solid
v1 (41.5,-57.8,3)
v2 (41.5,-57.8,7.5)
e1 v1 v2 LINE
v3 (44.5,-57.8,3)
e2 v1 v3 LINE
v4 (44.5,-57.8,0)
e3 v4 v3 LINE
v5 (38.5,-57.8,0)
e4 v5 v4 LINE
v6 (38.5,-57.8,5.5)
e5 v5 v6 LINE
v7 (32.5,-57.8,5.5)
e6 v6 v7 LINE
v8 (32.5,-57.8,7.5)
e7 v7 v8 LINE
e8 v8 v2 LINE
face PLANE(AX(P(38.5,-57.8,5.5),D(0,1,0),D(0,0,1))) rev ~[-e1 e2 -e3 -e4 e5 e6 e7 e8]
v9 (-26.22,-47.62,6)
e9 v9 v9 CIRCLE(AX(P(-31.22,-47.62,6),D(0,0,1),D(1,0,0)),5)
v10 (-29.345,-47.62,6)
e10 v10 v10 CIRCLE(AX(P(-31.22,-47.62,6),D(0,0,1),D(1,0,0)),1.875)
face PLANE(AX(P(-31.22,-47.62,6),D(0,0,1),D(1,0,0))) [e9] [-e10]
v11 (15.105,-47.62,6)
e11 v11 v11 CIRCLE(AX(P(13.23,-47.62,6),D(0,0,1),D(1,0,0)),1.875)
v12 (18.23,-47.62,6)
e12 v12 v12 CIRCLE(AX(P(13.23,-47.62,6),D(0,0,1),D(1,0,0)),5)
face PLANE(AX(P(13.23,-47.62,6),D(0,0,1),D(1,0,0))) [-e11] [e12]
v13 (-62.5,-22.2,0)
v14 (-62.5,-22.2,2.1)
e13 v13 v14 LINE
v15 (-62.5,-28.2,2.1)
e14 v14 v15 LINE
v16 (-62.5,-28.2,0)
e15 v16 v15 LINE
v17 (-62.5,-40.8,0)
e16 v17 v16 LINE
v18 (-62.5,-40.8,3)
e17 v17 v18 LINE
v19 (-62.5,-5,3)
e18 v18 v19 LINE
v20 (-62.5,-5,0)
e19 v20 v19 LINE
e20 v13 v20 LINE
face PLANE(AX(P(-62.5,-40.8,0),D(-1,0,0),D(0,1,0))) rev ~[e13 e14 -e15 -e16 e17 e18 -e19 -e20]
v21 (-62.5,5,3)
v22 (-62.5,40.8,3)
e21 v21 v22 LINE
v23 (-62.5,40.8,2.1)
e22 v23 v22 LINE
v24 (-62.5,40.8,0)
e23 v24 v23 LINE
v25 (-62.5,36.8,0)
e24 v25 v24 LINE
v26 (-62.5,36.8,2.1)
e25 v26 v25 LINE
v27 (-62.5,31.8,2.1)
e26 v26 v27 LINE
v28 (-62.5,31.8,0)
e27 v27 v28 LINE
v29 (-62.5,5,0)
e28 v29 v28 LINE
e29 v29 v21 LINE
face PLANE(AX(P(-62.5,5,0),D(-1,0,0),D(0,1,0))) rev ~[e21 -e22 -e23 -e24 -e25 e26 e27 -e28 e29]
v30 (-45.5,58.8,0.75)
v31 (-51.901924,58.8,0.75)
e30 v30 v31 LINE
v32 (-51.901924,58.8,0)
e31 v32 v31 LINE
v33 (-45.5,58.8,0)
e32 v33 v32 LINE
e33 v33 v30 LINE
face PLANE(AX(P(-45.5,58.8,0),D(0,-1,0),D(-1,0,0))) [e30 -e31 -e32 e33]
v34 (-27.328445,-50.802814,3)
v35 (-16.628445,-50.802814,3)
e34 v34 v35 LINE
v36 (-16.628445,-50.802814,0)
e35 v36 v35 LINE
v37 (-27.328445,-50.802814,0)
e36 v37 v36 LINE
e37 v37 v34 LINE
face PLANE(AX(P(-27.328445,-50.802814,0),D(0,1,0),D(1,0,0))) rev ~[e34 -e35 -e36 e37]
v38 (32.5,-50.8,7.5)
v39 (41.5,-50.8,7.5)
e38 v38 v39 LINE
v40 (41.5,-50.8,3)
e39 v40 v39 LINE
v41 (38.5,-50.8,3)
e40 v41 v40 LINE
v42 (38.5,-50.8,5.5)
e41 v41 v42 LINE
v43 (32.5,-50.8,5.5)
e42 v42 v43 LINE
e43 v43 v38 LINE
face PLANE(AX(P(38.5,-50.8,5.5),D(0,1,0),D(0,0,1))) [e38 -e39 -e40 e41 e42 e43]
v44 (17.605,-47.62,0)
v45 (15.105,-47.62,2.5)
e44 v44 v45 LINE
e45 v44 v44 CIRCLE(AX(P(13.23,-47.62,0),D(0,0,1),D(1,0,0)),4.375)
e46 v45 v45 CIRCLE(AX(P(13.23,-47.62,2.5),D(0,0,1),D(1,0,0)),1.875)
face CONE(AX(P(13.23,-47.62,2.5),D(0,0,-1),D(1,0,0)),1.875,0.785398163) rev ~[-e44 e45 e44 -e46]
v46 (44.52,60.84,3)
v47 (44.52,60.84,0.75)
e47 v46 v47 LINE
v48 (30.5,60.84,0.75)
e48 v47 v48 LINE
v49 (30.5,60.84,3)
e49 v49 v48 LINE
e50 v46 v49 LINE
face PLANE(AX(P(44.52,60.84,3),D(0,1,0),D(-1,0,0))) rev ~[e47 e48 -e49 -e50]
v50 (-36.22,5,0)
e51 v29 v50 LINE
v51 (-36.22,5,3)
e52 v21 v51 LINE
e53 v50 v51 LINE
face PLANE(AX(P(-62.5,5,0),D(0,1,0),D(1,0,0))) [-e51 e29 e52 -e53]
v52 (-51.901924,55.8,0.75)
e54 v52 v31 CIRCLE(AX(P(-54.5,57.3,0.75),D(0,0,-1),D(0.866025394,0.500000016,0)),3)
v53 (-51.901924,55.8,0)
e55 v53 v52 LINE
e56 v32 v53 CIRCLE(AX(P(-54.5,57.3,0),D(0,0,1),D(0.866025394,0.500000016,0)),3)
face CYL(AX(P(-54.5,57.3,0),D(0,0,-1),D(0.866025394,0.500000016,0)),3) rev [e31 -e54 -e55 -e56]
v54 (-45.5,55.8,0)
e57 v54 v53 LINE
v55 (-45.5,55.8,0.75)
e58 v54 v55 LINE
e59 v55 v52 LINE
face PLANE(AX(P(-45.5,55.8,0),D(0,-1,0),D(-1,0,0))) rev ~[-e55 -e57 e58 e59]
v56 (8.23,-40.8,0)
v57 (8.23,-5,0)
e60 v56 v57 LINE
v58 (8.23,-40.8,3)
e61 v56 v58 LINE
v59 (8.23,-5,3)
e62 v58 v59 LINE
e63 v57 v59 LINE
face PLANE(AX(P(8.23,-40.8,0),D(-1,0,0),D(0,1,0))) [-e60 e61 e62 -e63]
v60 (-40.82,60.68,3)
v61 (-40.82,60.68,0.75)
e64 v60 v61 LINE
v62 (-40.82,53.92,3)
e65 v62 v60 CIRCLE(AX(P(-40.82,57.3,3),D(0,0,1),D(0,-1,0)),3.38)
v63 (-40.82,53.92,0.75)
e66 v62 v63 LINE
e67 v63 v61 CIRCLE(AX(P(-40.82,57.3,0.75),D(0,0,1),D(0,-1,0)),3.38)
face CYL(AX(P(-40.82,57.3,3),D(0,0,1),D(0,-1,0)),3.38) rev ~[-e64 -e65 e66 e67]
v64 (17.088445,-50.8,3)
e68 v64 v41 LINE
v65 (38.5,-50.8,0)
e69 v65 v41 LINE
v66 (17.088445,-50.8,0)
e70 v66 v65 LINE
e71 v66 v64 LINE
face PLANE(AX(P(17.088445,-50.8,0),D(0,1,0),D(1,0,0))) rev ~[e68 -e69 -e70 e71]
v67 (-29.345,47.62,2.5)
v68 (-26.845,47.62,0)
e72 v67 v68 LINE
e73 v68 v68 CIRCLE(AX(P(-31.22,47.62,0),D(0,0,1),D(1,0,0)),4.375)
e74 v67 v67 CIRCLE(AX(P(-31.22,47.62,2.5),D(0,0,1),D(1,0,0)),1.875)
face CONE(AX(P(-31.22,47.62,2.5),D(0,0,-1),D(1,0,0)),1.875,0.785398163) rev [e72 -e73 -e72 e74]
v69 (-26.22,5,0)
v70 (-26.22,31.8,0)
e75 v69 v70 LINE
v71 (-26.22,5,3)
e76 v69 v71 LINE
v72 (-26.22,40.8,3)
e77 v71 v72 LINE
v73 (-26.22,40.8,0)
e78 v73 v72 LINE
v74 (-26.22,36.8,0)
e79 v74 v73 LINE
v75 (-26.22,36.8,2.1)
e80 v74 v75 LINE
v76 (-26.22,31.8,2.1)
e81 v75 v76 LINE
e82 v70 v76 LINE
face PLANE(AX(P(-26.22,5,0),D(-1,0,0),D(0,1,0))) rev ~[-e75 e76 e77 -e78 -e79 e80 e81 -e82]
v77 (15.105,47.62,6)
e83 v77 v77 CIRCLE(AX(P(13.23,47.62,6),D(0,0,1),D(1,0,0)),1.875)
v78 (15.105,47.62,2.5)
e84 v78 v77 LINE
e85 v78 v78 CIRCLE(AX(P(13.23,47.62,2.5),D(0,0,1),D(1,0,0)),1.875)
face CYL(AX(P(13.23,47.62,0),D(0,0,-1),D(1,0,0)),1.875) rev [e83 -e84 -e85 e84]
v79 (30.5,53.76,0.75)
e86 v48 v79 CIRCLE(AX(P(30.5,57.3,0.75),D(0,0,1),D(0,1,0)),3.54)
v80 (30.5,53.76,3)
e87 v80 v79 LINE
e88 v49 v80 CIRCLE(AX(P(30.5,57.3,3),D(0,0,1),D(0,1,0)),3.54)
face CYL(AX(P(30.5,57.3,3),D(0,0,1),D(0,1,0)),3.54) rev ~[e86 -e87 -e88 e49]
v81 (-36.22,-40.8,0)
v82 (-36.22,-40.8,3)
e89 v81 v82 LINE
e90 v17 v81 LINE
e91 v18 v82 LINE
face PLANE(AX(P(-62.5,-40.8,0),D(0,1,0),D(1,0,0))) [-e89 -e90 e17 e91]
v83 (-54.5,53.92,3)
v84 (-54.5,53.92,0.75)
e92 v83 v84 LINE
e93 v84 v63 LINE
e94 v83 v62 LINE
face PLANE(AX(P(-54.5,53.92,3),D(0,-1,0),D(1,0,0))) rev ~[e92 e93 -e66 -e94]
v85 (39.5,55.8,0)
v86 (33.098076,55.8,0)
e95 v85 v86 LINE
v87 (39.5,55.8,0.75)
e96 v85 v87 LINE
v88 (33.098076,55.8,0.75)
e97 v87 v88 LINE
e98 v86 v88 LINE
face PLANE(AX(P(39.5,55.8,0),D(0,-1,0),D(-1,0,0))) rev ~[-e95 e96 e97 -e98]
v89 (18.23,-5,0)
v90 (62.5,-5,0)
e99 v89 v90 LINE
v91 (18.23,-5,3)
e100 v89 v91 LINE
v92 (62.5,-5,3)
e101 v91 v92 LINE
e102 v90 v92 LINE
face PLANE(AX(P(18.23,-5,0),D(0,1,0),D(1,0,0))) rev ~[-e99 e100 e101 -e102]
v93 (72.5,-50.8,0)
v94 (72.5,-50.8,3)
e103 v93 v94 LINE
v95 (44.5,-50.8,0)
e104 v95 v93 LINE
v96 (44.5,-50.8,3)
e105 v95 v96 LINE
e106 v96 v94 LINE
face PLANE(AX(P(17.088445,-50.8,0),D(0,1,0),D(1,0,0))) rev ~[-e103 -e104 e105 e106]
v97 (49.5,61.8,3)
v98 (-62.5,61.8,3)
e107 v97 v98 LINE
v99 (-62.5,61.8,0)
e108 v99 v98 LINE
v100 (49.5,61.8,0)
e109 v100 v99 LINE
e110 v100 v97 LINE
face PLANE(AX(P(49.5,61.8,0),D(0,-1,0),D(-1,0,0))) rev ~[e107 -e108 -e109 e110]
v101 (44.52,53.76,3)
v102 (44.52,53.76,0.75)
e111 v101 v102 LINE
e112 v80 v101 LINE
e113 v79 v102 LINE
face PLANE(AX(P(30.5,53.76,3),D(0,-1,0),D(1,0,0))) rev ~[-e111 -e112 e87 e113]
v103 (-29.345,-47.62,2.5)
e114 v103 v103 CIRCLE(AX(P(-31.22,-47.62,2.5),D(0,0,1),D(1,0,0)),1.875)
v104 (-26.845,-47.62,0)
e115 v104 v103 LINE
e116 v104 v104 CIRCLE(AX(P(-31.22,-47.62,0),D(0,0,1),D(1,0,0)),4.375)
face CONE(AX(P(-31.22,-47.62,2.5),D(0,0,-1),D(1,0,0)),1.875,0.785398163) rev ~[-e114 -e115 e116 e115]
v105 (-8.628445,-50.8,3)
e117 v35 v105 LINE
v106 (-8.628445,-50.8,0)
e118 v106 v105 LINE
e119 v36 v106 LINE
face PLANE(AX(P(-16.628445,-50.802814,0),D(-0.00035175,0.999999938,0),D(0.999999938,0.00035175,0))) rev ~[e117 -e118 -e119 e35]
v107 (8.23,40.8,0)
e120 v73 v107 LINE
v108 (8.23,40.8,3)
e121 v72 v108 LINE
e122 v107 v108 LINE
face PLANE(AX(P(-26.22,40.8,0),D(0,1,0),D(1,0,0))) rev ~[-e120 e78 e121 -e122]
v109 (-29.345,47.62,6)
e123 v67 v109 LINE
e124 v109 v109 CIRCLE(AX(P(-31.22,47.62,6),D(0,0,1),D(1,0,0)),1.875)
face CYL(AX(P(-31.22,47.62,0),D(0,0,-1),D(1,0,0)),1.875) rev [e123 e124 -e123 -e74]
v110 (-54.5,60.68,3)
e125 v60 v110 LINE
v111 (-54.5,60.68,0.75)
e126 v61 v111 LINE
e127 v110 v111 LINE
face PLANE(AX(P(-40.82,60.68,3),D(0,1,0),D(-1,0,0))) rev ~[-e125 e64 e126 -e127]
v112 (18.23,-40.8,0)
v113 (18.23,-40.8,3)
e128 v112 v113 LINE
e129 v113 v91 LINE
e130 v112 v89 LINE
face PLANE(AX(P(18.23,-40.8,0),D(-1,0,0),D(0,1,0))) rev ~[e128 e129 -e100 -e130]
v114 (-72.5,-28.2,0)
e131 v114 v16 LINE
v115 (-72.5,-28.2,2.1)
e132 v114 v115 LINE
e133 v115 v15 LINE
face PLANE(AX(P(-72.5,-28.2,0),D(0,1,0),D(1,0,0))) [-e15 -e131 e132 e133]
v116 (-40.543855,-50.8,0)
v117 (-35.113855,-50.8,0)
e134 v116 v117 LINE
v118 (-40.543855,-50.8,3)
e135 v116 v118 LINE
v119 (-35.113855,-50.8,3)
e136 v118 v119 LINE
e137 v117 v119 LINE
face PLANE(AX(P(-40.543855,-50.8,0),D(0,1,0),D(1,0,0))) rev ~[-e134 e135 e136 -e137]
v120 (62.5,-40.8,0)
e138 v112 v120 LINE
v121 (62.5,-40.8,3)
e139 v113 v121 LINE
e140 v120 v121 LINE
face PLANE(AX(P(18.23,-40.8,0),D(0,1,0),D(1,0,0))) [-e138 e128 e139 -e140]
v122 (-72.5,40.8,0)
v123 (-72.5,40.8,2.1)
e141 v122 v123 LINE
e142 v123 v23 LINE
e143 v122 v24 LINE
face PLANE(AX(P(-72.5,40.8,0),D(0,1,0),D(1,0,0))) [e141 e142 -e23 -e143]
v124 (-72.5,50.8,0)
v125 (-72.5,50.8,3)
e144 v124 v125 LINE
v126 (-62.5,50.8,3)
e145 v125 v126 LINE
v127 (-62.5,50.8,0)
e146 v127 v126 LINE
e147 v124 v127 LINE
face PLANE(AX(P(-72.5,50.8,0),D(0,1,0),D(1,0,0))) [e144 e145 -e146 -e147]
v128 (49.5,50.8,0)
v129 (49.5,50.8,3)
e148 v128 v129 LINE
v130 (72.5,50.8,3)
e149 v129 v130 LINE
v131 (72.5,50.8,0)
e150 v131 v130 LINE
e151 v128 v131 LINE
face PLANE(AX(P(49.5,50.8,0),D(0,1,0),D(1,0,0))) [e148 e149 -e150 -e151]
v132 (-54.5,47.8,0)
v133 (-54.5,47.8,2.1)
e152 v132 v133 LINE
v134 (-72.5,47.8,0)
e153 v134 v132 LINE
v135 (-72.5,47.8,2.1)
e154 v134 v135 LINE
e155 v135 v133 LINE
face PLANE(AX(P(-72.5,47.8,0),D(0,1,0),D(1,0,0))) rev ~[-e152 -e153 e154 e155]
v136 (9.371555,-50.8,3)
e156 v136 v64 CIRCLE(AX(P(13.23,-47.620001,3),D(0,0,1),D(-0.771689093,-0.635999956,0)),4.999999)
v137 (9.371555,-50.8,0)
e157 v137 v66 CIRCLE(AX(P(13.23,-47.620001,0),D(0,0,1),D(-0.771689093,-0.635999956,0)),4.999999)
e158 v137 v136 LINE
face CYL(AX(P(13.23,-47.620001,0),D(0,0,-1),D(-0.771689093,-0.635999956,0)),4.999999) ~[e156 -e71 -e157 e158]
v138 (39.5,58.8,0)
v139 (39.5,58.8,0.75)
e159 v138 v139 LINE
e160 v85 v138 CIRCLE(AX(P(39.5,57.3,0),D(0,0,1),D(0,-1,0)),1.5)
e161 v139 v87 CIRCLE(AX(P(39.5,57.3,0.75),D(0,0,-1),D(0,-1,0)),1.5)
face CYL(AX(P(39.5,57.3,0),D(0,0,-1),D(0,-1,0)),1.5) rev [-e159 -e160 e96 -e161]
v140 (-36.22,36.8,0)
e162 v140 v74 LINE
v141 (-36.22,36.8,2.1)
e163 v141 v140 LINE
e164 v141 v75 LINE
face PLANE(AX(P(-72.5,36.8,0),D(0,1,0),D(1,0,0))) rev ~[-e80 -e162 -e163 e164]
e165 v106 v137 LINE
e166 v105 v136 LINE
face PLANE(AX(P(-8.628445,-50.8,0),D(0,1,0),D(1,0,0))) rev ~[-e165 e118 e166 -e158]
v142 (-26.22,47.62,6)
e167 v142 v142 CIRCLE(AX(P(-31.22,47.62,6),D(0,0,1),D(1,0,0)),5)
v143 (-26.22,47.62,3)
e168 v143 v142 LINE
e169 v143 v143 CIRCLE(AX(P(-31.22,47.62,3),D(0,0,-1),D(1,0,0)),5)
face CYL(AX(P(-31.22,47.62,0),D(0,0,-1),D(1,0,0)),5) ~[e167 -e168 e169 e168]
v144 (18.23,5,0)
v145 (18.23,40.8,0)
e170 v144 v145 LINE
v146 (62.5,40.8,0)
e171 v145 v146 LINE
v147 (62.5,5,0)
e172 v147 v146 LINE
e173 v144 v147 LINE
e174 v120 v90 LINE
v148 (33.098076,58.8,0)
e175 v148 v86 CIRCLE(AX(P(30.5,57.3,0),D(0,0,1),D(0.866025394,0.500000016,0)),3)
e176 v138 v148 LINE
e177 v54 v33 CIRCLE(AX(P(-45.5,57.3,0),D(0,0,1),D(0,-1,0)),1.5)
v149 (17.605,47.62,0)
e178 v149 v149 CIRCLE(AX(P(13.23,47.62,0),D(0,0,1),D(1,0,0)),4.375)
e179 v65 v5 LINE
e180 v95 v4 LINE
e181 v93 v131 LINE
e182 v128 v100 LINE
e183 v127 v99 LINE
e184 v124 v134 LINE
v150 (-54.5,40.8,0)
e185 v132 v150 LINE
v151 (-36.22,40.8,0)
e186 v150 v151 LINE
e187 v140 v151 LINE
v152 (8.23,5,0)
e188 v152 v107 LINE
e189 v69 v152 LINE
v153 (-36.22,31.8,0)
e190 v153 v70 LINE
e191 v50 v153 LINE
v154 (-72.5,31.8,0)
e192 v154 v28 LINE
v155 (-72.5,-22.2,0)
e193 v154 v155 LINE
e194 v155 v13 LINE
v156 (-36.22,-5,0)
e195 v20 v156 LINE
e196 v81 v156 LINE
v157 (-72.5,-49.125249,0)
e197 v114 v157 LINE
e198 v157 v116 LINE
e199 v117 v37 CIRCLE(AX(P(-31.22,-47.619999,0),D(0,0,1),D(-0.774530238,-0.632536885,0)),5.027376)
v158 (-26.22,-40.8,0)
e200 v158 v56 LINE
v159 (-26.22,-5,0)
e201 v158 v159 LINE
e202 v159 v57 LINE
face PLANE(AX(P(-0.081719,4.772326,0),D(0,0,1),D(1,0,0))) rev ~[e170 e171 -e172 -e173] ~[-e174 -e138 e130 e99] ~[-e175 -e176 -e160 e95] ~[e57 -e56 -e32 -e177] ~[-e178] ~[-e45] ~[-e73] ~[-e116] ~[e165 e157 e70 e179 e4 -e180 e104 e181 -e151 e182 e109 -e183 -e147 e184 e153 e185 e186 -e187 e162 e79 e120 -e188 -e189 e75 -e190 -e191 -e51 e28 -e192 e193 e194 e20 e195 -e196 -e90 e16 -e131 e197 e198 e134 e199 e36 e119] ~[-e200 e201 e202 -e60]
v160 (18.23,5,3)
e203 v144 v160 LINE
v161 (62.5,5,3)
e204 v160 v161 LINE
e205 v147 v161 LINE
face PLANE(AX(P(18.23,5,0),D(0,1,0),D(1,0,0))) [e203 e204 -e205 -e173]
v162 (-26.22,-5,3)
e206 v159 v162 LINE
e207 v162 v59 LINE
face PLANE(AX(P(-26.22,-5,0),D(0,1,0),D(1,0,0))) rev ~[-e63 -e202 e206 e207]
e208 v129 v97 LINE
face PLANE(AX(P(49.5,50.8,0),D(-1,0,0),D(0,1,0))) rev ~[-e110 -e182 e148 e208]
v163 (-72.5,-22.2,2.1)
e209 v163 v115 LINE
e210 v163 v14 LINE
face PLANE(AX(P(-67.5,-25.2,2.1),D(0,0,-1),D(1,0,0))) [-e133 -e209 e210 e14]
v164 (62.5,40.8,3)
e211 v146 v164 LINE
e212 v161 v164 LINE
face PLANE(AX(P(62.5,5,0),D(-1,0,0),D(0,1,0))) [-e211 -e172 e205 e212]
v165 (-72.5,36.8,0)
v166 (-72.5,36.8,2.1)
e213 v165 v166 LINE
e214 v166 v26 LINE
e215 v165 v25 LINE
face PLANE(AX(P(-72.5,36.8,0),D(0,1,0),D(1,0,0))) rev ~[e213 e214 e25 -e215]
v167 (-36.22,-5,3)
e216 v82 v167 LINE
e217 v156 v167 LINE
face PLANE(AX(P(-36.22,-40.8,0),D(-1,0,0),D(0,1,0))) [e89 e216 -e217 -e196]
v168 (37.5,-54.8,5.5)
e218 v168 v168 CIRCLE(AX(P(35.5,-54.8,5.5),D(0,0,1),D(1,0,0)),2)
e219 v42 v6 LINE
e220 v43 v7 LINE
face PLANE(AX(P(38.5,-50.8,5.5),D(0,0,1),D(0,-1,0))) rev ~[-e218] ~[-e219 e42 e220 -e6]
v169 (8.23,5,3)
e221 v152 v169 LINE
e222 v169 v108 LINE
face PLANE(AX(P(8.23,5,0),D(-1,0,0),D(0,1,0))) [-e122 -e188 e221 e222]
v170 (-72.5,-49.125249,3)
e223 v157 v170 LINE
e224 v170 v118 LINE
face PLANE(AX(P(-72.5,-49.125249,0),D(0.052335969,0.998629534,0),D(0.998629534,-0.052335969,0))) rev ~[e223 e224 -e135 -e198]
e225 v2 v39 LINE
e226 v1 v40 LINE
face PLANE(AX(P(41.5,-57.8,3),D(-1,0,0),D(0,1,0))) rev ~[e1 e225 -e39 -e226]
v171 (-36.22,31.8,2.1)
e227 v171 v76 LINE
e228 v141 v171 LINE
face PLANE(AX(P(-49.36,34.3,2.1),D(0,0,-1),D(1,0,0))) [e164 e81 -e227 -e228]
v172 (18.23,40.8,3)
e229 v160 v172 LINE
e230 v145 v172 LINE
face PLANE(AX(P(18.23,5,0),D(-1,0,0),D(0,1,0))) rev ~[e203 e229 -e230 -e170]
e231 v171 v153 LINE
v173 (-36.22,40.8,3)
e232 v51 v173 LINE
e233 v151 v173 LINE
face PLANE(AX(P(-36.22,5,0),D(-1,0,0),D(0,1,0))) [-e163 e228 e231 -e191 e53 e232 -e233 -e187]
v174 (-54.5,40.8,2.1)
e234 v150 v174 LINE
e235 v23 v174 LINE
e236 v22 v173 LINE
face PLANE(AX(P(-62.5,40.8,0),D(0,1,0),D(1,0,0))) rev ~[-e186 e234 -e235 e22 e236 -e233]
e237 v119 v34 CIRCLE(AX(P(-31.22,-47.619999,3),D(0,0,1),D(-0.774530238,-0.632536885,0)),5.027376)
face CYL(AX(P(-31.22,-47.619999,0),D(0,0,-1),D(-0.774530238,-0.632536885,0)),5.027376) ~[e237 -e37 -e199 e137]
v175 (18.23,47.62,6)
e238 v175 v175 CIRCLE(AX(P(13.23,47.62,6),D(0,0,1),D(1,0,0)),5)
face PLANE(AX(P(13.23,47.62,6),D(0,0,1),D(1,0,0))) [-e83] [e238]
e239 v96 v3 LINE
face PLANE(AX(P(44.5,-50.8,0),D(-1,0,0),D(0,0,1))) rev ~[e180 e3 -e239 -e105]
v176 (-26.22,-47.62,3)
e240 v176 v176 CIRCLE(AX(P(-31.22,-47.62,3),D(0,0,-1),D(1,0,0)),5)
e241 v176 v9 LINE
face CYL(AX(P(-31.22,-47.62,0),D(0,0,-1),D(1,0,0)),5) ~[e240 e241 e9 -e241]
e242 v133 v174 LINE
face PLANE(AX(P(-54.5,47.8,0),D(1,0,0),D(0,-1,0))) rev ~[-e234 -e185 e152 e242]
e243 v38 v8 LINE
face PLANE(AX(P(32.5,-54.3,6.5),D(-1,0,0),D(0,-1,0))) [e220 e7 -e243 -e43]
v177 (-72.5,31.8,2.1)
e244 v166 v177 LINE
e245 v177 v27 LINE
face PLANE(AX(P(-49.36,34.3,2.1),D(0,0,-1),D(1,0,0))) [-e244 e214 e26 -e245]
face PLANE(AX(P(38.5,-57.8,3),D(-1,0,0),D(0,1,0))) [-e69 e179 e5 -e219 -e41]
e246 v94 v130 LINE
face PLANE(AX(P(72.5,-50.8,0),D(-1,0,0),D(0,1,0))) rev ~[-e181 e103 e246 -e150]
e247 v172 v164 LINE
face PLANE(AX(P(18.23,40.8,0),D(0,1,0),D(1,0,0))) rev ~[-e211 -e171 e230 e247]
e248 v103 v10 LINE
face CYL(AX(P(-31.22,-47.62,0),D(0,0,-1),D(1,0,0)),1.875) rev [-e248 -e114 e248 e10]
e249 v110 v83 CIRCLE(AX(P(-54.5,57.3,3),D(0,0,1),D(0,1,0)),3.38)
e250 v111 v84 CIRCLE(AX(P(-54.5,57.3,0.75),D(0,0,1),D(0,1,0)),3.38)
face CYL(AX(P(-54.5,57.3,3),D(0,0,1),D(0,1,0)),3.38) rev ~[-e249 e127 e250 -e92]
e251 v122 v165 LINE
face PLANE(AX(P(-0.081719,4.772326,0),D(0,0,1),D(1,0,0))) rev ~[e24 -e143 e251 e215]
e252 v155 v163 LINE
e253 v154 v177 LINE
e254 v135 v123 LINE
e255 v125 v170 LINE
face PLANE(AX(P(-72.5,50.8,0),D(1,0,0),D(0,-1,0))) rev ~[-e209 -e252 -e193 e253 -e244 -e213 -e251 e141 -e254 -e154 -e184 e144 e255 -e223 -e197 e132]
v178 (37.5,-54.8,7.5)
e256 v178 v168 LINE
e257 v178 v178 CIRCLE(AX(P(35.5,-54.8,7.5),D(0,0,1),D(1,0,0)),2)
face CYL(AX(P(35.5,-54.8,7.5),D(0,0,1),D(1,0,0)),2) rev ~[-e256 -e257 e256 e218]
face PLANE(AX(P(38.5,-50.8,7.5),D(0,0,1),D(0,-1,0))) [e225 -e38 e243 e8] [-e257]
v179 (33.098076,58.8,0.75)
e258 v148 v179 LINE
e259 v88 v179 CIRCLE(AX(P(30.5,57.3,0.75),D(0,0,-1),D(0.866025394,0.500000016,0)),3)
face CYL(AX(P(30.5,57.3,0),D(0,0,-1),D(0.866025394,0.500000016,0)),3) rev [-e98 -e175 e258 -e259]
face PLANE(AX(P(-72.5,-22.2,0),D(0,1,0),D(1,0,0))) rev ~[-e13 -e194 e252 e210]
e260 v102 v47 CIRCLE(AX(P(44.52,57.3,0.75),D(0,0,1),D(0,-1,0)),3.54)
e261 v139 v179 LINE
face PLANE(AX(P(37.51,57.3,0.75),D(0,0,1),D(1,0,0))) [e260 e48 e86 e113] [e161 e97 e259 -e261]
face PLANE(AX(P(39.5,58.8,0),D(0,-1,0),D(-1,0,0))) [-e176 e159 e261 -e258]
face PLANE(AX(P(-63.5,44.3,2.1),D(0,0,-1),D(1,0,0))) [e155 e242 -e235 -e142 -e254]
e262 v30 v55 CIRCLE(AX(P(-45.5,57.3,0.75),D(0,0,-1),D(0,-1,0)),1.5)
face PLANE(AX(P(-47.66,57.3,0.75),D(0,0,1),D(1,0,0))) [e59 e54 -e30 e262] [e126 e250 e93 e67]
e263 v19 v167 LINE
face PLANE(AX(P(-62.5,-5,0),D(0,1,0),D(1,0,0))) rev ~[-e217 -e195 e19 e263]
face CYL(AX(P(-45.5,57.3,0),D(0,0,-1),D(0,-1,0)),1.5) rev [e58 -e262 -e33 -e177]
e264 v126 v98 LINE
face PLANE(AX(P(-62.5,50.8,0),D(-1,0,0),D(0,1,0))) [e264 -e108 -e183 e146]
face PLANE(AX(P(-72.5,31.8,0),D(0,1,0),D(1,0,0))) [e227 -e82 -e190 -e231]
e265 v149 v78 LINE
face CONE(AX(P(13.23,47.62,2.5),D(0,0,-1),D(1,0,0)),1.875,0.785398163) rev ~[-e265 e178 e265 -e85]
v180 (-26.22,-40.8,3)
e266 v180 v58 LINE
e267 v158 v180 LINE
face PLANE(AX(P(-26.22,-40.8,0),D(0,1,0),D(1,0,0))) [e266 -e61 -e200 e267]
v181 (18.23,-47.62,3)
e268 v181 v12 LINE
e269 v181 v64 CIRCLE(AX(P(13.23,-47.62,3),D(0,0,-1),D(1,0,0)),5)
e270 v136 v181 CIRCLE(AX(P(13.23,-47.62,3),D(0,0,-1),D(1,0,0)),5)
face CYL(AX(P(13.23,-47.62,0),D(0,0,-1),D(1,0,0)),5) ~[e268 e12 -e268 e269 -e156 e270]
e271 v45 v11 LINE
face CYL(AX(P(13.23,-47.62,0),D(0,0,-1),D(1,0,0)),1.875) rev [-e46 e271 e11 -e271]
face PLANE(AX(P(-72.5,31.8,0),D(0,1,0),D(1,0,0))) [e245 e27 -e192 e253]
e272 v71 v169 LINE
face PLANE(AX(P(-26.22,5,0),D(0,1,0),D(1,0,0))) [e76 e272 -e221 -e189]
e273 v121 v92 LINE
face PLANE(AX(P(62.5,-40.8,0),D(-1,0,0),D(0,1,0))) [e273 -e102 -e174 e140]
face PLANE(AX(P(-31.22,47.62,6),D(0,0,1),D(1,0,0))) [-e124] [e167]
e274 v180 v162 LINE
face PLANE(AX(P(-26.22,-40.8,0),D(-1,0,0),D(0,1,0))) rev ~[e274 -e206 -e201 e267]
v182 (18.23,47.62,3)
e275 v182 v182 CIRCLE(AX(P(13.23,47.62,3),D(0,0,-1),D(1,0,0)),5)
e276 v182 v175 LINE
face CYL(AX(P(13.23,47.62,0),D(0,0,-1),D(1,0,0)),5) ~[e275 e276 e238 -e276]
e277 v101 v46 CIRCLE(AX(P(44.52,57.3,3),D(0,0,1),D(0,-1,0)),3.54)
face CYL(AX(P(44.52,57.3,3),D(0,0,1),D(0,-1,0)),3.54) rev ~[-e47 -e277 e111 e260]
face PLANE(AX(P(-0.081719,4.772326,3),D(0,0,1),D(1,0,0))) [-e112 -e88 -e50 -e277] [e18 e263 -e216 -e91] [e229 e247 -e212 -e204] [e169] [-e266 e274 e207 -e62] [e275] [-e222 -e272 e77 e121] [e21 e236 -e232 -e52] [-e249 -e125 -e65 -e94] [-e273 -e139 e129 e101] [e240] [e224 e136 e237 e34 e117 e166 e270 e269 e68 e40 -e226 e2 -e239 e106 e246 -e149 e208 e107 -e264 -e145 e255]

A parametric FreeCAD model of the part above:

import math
import FreeCAD as App
import Part
import Sketcher

V = App.Vector
Q = App.Units.Quantity


def edges_at(feature, points):
    """Names of the edges that pass closest to the given points."""
    edges = feature.Shape.Edges
    near = lambda p: min(range(len(edges)), key=lambda i: edges[i].distToShape(Part.Vertex(*p))[0])
    return sorted({f"Edge{near(p) + 1}" for p in points})


def add_polygon(sketch, points):
    """Adds a closed chain of lines whose ends are joined by coincident constraints."""
    first, n = sketch.GeometryCount, len(points)
    for a, b in zip(points, points[1:] + points[:1]):
        sketch.addGeometry(Part.LineSegment(App.Vector(*a, 0), App.Vector(*b, 0)), False)
    for i in range(n):
        sketch.addConstraint(Sketcher.Constraint("Coincident", first + i, 2, first + (i + 1) % n, 1))

doc = App.newDocument("Part")
body = doc.addObject("PartDesign::Body", "Body")

# Sketch on XY plane
sketch1 = body.newObject("Sketcher::SketchObject", "Sketch")
sketch1.AttachmentSupport = (doc.getObject("XY_Plane"), [""])
sketch1.MapMode = "FlatFace"
sketch1.addGeometry(Part.LineSegment(V(-72.5, 50.8, 0), V(-72.5, -49.1, 0)), False)  # 0
sketch1.addGeometry(Part.LineSegment(V(-72.5, -49.1, 0), V(-40.5, -50.8, 0)), False)  # 1
sketch1.addGeometry(Part.LineSegment(V(-40.5, -50.8, 0), V(-35.1, -50.8, 0)), False)  # 2
sketch1.addGeometry(Part.ArcOfCircle(Part.Circle(V(-31.2, -47.6, 0), V(0, 0, 1), 5), math.radians(-141), math.radians(-39)), False)  # 3
sketch1.addGeometry(Part.LineSegment(V(-27.3, -50.8, 0), V(-16.6, -50.8, 0)), False)  # 4
sketch1.addGeometry(Part.LineSegment(V(-16.6, -50.8, 0), V(-8.6, -50.8, 0)), False)  # 5
sketch1.addGeometry(Part.LineSegment(V(-8.6, -50.8, 0), V(9.4, -50.8, 0)), False)  # 6
sketch1.addGeometry(Part.ArcOfCircle(Part.Circle(V(13.2, -47.6, 0), V(0, 0, 1), 5), math.radians(-141), math.radians(-39)), False)  # 7
sketch1.addGeometry(Part.LineSegment(V(17.1, -50.8, 0), V(72.5, -50.8, 0)), False)  # 8
sketch1.addGeometry(Part.LineSegment(V(72.5, -50.8, 0), V(72.5, 50.8, 0)), False)  # 9
sketch1.addGeometry(Part.LineSegment(V(72.5, 50.8, 0), V(49.5, 50.8, 0)), False)  # 10
sketch1.addGeometry(Part.LineSegment(V(49.5, 50.8, 0), V(49.5, 61.8, 0)), False)  # 11
sketch1.addGeometry(Part.LineSegment(V(49.5, 61.8, 0), V(-62.5, 61.8, 0)), False)  # 12
sketch1.addGeometry(Part.LineSegment(V(-62.5, 61.8, 0), V(-62.5, 50.8, 0)), False)  # 13
sketch1.addGeometry(Part.LineSegment(V(-62.5, 50.8, 0), V(-72.5, 50.8, 0)), False)  # 14
add_polygon(sketch1, [(-36.2, -40.8), (-62.5, -40.8), (-62.5, -5), (-36.2, -5)])  # lines 15-18
sketch1.addGeometry(Part.Circle(V(-31.2, -47.6, 0), V(0, 0, 1), 1.9), False)  # 19
add_polygon(sketch1, [(8.2, -40.8), (-26.2, -40.8), (-26.2, -5), (8.2, -5)])  # lines 20-23
sketch1.addGeometry(Part.Circle(V(13.2, -47.6, 0), V(0, 0, 1), 1.9), False)  # 24
add_polygon(sketch1, [(62.5, -40.8), (18.2, -40.8), (18.2, -5), (62.5, -5)])  # lines 25-28
add_polygon(sketch1, [(-36.2, 5), (-62.5, 5), (-62.5, 40.8), (-36.2, 40.8)])  # lines 29-32
add_polygon(sketch1, [(8.2, 5), (-26.2, 5), (-26.2, 40.8), (8.2, 40.8)])  # lines 33-36
sketch1.addGeometry(Part.ArcOfCircle(Part.Circle(V(-45.5, 57.3, 0), V(0, 0, 1), 1.5), math.radians(-90), math.radians(90)), False)  # 37
sketch1.addGeometry(Part.LineSegment(V(-45.5, 55.8, 0), V(-51.9, 55.8, 0)), False)  # 38
sketch1.addGeometry(Part.ArcOfCircle(Part.Circle(V(-54.5, 57.3, 0), V(0, 0, 1), 3), math.radians(30), math.radians(330)), False)  # 39
sketch1.addGeometry(Part.LineSegment(V(-51.9, 58.8, 0), V(-45.5, 58.8, 0)), False)  # 40
sketch1.addGeometry(Part.Circle(V(-31.2, 47.6, 0), V(0, 0, 1), 1.9), False)  # 41
add_polygon(sketch1, [(62.5, 5), (18.2, 5), (18.2, 40.8), (62.5, 40.8)])  # lines 42-45
sketch1.addGeometry(Part.Circle(V(13.2, 47.6, 0), V(0, 0, 1), 1.9), False)  # 46
sketch1.addGeometry(Part.ArcOfCircle(Part.Circle(V(39.5, 57.3, 0), V(0, 0, 1), 1.5), math.radians(-90), math.radians(90)), False)  # 47
sketch1.addGeometry(Part.LineSegment(V(39.5, 55.8, 0), V(33.1, 55.8, 0)), False)  # 48
sketch1.addGeometry(Part.ArcOfCircle(Part.Circle(V(30.5, 57.3, 0), V(0, 0, 1), 3), math.radians(30), math.radians(330)), False)  # 49
sketch1.addGeometry(Part.LineSegment(V(33.1, 58.8, 0), V(39.5, 58.8, 0)), False)  # 50
sketch1.addConstraint(Sketcher.Constraint("Coincident", 0, 2, 1, 1))
sketch1.addConstraint(Sketcher.Constraint("Coincident", 1, 2, 2, 1))
sketch1.addConstraint(Sketcher.Constraint("Coincident", 2, 2, 3, 1))
sketch1.addConstraint(Sketcher.Constraint("Coincident", 3, 2, 4, 1))
sketch1.addConstraint(Sketcher.Constraint("Coincident", 4, 2, 5, 1))
sketch1.addConstraint(Sketcher.Constraint("Coincident", 5, 2, 6, 1))
sketch1.addConstraint(Sketcher.Constraint("Coincident", 6, 2, 7, 1))
sketch1.addConstraint(Sketcher.Constraint("Coincident", 7, 2, 8, 1))
sketch1.addConstraint(Sketcher.Constraint("Coincident", 8, 2, 9, 1))
sketch1.addConstraint(Sketcher.Constraint("Coincident", 9, 2, 10, 1))
sketch1.addConstraint(Sketcher.Constraint("Coincident", 10, 2, 11, 1))
sketch1.addConstraint(Sketcher.Constraint("Coincident", 11, 2, 12, 1))
sketch1.addConstraint(Sketcher.Constraint("Coincident", 12, 2, 13, 1))
sketch1.addConstraint(Sketcher.Constraint("Coincident", 13, 2, 14, 1))
sketch1.addConstraint(Sketcher.Constraint("Coincident", 14, 2, 0, 1))
sketch1.addConstraint(Sketcher.Constraint("Tangent", 37, 1, 38, 1))
sketch1.addConstraint(Sketcher.Constraint("Coincident", 38, 2, 39, 2))
sketch1.addConstraint(Sketcher.Constraint("Coincident", 39, 1, 40, 1))
sketch1.addConstraint(Sketcher.Constraint("Tangent", 40, 2, 37, 2))
sketch1.addConstraint(Sketcher.Constraint("Tangent", 47, 1, 48, 1))
sketch1.addConstraint(Sketcher.Constraint("Coincident", 48, 2, 49, 2))
sketch1.addConstraint(Sketcher.Constraint("Coincident", 49, 1, 50, 1))
sketch1.addConstraint(Sketcher.Constraint("Tangent", 50, 2, 47, 2))
sketch1.addConstraint(Sketcher.Constraint("Vertical", 0))
sketch1.addConstraint(Sketcher.Constraint("Horizontal", 2))
sketch1.addConstraint(Sketcher.Constraint("Horizontal", 4))
sketch1.addConstraint(Sketcher.Constraint("Horizontal", 6))
sketch1.addConstraint(Sketcher.Constraint("Horizontal", 8))
sketch1.addConstraint(Sketcher.Constraint("Vertical", 9))
sketch1.addConstraint(Sketcher.Constraint("Horizontal", 10))
sketch1.addConstraint(Sketcher.Constraint("Vertical", 11))
sketch1.addConstraint(Sketcher.Constraint("Horizontal", 12))
sketch1.addConstraint(Sketcher.Constraint("Vertical", 13))
sketch1.addConstraint(Sketcher.Constraint("Horizontal", 14))
sketch1.addConstraint(Sketcher.Constraint("Horizontal", 15))
sketch1.addConstraint(Sketcher.Constraint("Vertical", 16))
sketch1.addConstraint(Sketcher.Constraint("Horizontal", 17))
sketch1.addConstraint(Sketcher.Constraint("Vertical", 18))
sketch1.addConstraint(Sketcher.Constraint("Horizontal", 20))
sketch1.addConstraint(Sketcher.Constraint("Vertical", 21))
sketch1.addConstraint(Sketcher.Constraint("Horizontal", 22))
sketch1.addConstraint(Sketcher.Constraint("Vertical", 23))
sketch1.addConstraint(Sketcher.Constraint("Horizontal", 25))
sketch1.addConstraint(Sketcher.Constraint("Vertical", 26))
sketch1.addConstraint(Sketcher.Constraint("Horizontal", 27))
sketch1.addConstraint(Sketcher.Constraint("Vertical", 28))
sketch1.addConstraint(Sketcher.Constraint("Horizontal", 29))
sketch1.addConstraint(Sketcher.Constraint("Vertical", 30))
sketch1.addConstraint(Sketcher.Constraint("Horizontal", 31))
sketch1.addConstraint(Sketcher.Constraint("Vertical", 32))
sketch1.addConstraint(Sketcher.Constraint("Horizontal", 33))
sketch1.addConstraint(Sketcher.Constraint("Vertical", 34))
sketch1.addConstraint(Sketcher.Constraint("Horizontal", 35))
sketch1.addConstraint(Sketcher.Constraint("Vertical", 36))
sketch1.addConstraint(Sketcher.Constraint("Horizontal", 38))
sketch1.addConstraint(Sketcher.Constraint("Horizontal", 40))
sketch1.addConstraint(Sketcher.Constraint("Horizontal", 42))
sketch1.addConstraint(Sketcher.Constraint("Vertical", 43))
sketch1.addConstraint(Sketcher.Constraint("Horizontal", 44))
sketch1.addConstraint(Sketcher.Constraint("Vertical", 45))
sketch1.addConstraint(Sketcher.Constraint("Horizontal", 48))
sketch1.addConstraint(Sketcher.Constraint("Horizontal", 50))
sketch1.addConstraint(Sketcher.Constraint("Coincident", 19, 3, 3, 3))
sketch1.addConstraint(Sketcher.Constraint("Coincident", 24, 3, 7, 3))
sketch1.addConstraint(Sketcher.Constraint("Equal", 19, 24))
sketch1.addConstraint(Sketcher.Constraint("Equal", 24, 41))
sketch1.addConstraint(Sketcher.Constraint("Equal", 41, 46))
sketch1.addConstraint(Sketcher.Constraint("Equal", 37, 47))
sketch1.addConstraint(Sketcher.Constraint("Equal", 39, 49))
sketch1.addConstraint(Sketcher.Constraint("Symmetric", 8, 2, 14, 2, -1, 1))
sketch1.addConstraint(Sketcher.Constraint("Symmetric", 27, 2, 29, 2, -1, 1))
sketch1.addConstraint(Sketcher.Constraint("Symmetric", 15, 2, 44, 2, -1, 1))
sketch1.addConstraint(Sketcher.Constraint("Symmetric", 16, 2, 27, 2, -2))
sketch1.addConstraint(Sketcher.Constraint("Symmetric", 3, 3, 41, 3, -1))
sketch1.addConstraint(Sketcher.Constraint("Symmetric", 7, 3, 46, 3, -1))
sketch1.addConstraint(Sketcher.Constraint("Symmetric", 18, 2, 31, 2, -1))
sketch1.addConstraint(Sketcher.Constraint("Symmetric", 21, 2, 33, 2, -1))
sketch1.addConstraint(Sketcher.Constraint("Symmetric", 23, 2, 35, 2, -1))
sketch1.addConstraint(Sketcher.Constraint("Symmetric", 26, 2, 42, 2, -1))
sketch1.addConstraint(Sketcher.Constraint("Horizontal", 3, 3, 7, 3))
sketch1.addConstraint(Sketcher.Constraint("Horizontal", 37, 3, 39, 3))
sketch1.addConstraint(Sketcher.Constraint("Horizontal", 39, 3, 47, 3))
sketch1.addConstraint(Sketcher.Constraint("Horizontal", 47, 3, 49, 3))
sketch1.addConstraint(Sketcher.Constraint("Horizontal", 2, 2, 5, 2))
sketch1.addConstraint(Sketcher.Constraint("Horizontal", 6, 2, 7, 2))
sketch1.addConstraint(Sketcher.Constraint("Horizontal", 10, 2, 13, 2))
sketch1.addConstraint(Sketcher.Constraint("Horizontal", 18, 2, 20, 2))
sketch1.addConstraint(Sketcher.Constraint("Horizontal", 17, 2, 21, 2))
sketch1.addConstraint(Sketcher.Constraint("Horizontal", 23, 2, 25, 2))
sketch1.addConstraint(Sketcher.Constraint("Vertical", 13, 2, 15, 2))
sketch1.addConstraint(Sketcher.Constraint("Equal", 40, 48))
sketch1.addConstraint(Sketcher.Constraint("Radius", 7, 4.999999))
sketch1.addConstraint(Sketcher.Constraint("Radius", 39, 3.0))
sketch1.addConstraint(Sketcher.Constraint("Radius", 37, 1.5))
sketch1.addConstraint(Sketcher.Constraint("Diameter", 19, 3.75))
sketch1.addConstraint(Sketcher.Constraint("DistanceX", 6, 1, 6, 2, 18.0))
sketch1.addConstraint(Sketcher.Constraint("DistanceX", 10, 2, 10, 1, 23.0))
sketch1.addConstraint(Sketcher.Constraint("DistanceX", 12, 2, 12, 1, 112.0))
sketch1.addConstraint(Sketcher.Constraint("DistanceX", 14, 2, 14, 1, 10.0))
sketch1.addConstraint(Sketcher.Constraint("DistanceY", 11, 1, 11, 2, 11.0))
sketch1.addConstraint(Sketcher.Constraint("Angle", 1, Q("-3.000001 deg")))
sketch1.addConstraint(Sketcher.Constraint("Distance", 1, 32.0))
sketch1.addConstraint(Sketcher.Constraint("Distance", 5, 8.0))
sketch1.addConstraint(Sketcher.Constraint("DistanceX", 4, 1, 4, 2, 10.7))
sketch1.addConstraint(Sketcher.Constraint("DistanceY", 9, 1, 9, 2, 101.6))
sketch1.addConstraint(Sketcher.Constraint("DistanceY", 16, 1, 16, 2, 35.8))
sketch1.addConstraint(Sketcher.Constraint("DistanceY", 16, 2, -1, 1, 5.0))
sketch1.addConstraint(Sketcher.Constraint("DistanceX", 39, 3, 37, 3, 9.0))
sketch1.addConstraint(Sketcher.Constraint("DistanceX", 37, 3, 47, 3, 85.0))
sketch1.addConstraint(Sketcher.Constraint("DistanceX", 47, 3, 9, 2, 33.0))
sketch1.addConstraint(Sketcher.Constraint("DistanceX", 17, 2, 3, 3, 5.0))
sketch1.addConstraint(Sketcher.Constraint("DistanceX", 3, 3, 20, 2, 5.0))
sketch1.addConstraint(Sketcher.Constraint("DistanceX", 22, 2, 24, 3, 5.0))
sketch1.addConstraint(Sketcher.Constraint("DistanceX", 24, 3, 25, 2, 5.0))
sketch1.addConstraint(Sketcher.Constraint("DistanceY", 31, 2, 37, 1, 15.0))
sketch1.addConstraint(Sketcher.Constraint("DistanceX", 2, 1, 2, 2, 5.43))
sketch1.addConstraint(Sketcher.Constraint("DistanceX", 15, 2, 15, 1, 26.28))
sketch1.addConstraint(Sketcher.Constraint("DistanceX", 20, 2, 20, 1, 34.45))
sketch1.addConstraint(Sketcher.Constraint("DistanceY", 3, 3, -1, 1, 47.619999))
pad1 = body.newObject("PartDesign::Pad", "Pad")
pad1.Profile = sketch1
pad1.Length = 3

# Sketch on XZ plane
sketch2 = body.newObject("Sketcher::SketchObject", "Sketch001")
sketch2.AttachmentSupport = (doc.getObject("XZ_Plane"), [""])
sketch2.MapMode = "FlatFace"
sketch2.AttachmentOffset = App.Placement(V(0, 0, 50.8), App.Rotation())
add_polygon(sketch2, [(38.5, 3), (38.5, 0), (44.5, 0), (44.5, 3)])  # lines 0-3
sketch2.addConstraint(Sketcher.Constraint("Vertical", 0))
sketch2.addConstraint(Sketcher.Constraint("Horizontal", 1))
sketch2.addConstraint(Sketcher.Constraint("Vertical", 2))
sketch2.addConstraint(Sketcher.Constraint("Horizontal", 3))
sketch2.addConstraint(Sketcher.Constraint("PointOnObject", 0, 2, -1))
sketch2.addConstraint(Sketcher.Constraint("DistanceX", 1, 1, 1, 2, 6.0))
sketch2.addConstraint(Sketcher.Constraint("DistanceY", 0, 2, 0, 1, 3.0))
sketch2.addConstraint(Sketcher.Constraint("DistanceX", -1, 1, 0, 2, 38.5))
pad2 = body.newObject("PartDesign::Pad", "Pad001")
pad2.Profile = sketch2
pad2.Length = 7

# Sketch on XY plane
sketch3 = body.newObject("Sketcher::SketchObject", "Sketch002")
sketch3.AttachmentSupport = (doc.getObject("XY_Plane"), [""])
sketch3.MapMode = "FlatFace"
sketch3.AttachmentOffset = App.Placement(V(0, 0, 3), App.Rotation())
add_polygon(sketch3, [(38.5, -50.8), (38.5, -57.8), (41.5, -57.8), (41.5, -50.8)])  # lines 0-3
sketch3.addConstraint(Sketcher.Constraint("Vertical", 0))
sketch3.addConstraint(Sketcher.Constraint("Horizontal", 1))
sketch3.addConstraint(Sketcher.Constraint("Vertical", 2))
sketch3.addConstraint(Sketcher.Constraint("Horizontal", 3))
sketch3.addConstraint(Sketcher.Constraint("DistanceX", 1, 1, 1, 2, 3.0))
sketch3.addConstraint(Sketcher.Constraint("DistanceY", 0, 2, 0, 1, 7.0))
sketch3.addConstraint(Sketcher.Constraint("DistanceX", -1, 1, 0, 2, 38.5))
sketch3.addConstraint(Sketcher.Constraint("DistanceY", 0, 2, -1, 1, 57.8))
pad3 = body.newObject("PartDesign::Pad", "Pad002")
pad3.Profile = sketch3
pad3.Length = 4.5

# Sketch on YZ plane
sketch4 = body.newObject("Sketcher::SketchObject", "Sketch003")
sketch4.AttachmentSupport = (doc.getObject("YZ_Plane"), [""])
sketch4.MapMode = "FlatFace"
sketch4.AttachmentOffset = App.Placement(V(0, 0, 38.5), App.Rotation())
add_polygon(sketch4, [(-50.8, 7.5), (-50.8, 5.5), (-57.8, 5.5), (-57.8, 7.5)])  # lines 0-3
sketch4.addConstraint(Sketcher.Constraint("Vertical", 0))
sketch4.addConstraint(Sketcher.Constraint("Horizontal", 1))
sketch4.addConstraint(Sketcher.Constraint("Vertical", 2))
sketch4.addConstraint(Sketcher.Constraint("Horizontal", 3))
sketch4.addConstraint(Sketcher.Constraint("DistanceX", 1, 2, 1, 1, 7.0))
sketch4.addConstraint(Sketcher.Constraint("DistanceY", 0, 2, 0, 1, 2.0))
sketch4.addConstraint(Sketcher.Constraint("DistanceX", 0, 2, -1, 1, 50.8))
sketch4.addConstraint(Sketcher.Constraint("DistanceY", -1, 1, 0, 2, 5.5))
pad4 = body.newObject("PartDesign::Pad", "Pad003")
pad4.Profile = sketch4
pad4.Length = 6
pad4.Reversed = True

# Sketch on XY plane
sketch5 = body.newObject("Sketcher::SketchObject", "Sketch004")
sketch5.AttachmentSupport = (doc.getObject("XY_Plane"), [""])
sketch5.MapMode = "FlatFace"
sketch5.AttachmentOffset = App.Placement(V(0, 0, 7.5), App.Rotation())
sketch5.addGeometry(Part.Circle(V(35.5, -54.8, 0), V(0, 0, 1), 2), False)
sketch5.addConstraint(Sketcher.Constraint("Diameter", 0, 4.0))
sketch5.addConstraint(Sketcher.Constraint("DistanceX", -1, 1, 0, 3, 35.5))
sketch5.addConstraint(Sketcher.Constraint("DistanceY", 0, 3, -1, 1, 54.8))
pocket1 = body.newObject("PartDesign::Pocket", "Pocket")
pocket1.Profile = sketch5
pocket1.Length = 5

# Sketch on XY plane
sketch6 = body.newObject("Sketcher::SketchObject", "Sketch005")
sketch6.AttachmentSupport = (doc.getObject("XY_Plane"), [""])
sketch6.MapMode = "FlatFace"
sketch6.addGeometry(Part.Circle(V(-31.2, 47.6, 0), V(0, 0, 1), 5), False)
sketch6.addGeometry(Part.Circle(V(-31.2, 47.6, 0), V(0, 0, 1), 1.9), False)
sketch6.addGeometry(Part.Circle(V(13.2, 47.6, 0), V(0, 0, 1), 5), False)
sketch6.addGeometry(Part.Circle(V(13.2, 47.6, 0), V(0, 0, 1), 1.9), False)
sketch6.addGeometry(Part.Circle(V(-31.2, -47.6, 0), V(0, 0, 1), 5), False)
sketch6.addGeometry(Part.Circle(V(-31.2, -47.6, 0), V(0, 0, 1), 1.9), False)
sketch6.addGeometry(Part.Circle(V(13.2, -47.6, 0), V(0, 0, 1), 5), False)
sketch6.addGeometry(Part.Circle(V(13.2, -47.6, 0), V(0, 0, 1), 1.9), False)
sketch6.addConstraint(Sketcher.Constraint("Coincident", 1, 3, 0, 3))
sketch6.addConstraint(Sketcher.Constraint("Coincident", 3, 3, 2, 3))
sketch6.addConstraint(Sketcher.Constraint("Coincident", 5, 3, 4, 3))
sketch6.addConstraint(Sketcher.Constraint("Coincident", 7, 3, 6, 3))
sketch6.addConstraint(Sketcher.Constraint("Equal", 0, 2))
sketch6.addConstraint(Sketcher.Constraint("Equal", 1, 3))
sketch6.addConstraint(Sketcher.Constraint("Equal", 2, 4))
sketch6.addConstraint(Sketcher.Constraint("Equal", 3, 5))
sketch6.addConstraint(Sketcher.Constraint("Equal", 4, 6))
sketch6.addConstraint(Sketcher.Constraint("Equal", 5, 7))
sketch6.addConstraint(Sketcher.Constraint("Symmetric", 0, 3, 4, 3, -1))
sketch6.addConstraint(Sketcher.Constraint("Symmetric", 2, 3, 6, 3, -1))
sketch6.addConstraint(Sketcher.Constraint("Horizontal", 1, 3, 2, 3))
sketch6.addConstraint(Sketcher.Constraint("Diameter", 0, 10.0))
sketch6.addConstraint(Sketcher.Constraint("Diameter", 1, 3.75))
sketch6.addConstraint(Sketcher.Constraint("DistanceX", 0, 3, -1, 1, 31.22))
sketch6.addConstraint(Sketcher.Constraint("DistanceY", -1, 1, 0, 3, 47.62))
sketch6.addConstraint(Sketcher.Constraint("DistanceX", -1, 1, 2, 3, 13.23))
pad5 = body.newObject("PartDesign::Pad", "Pad004")
pad5.Profile = sketch6
pad5.Length = 6

# Sketch on XY plane
sketch7 = body.newObject("Sketcher::SketchObject", "Sketch006")
sketch7.AttachmentSupport = (doc.getObject("XY_Plane"), [""])
sketch7.MapMode = "FlatFace"
sketch7.AttachmentOffset = App.Placement(V(0, 0, 3), App.Rotation())
sketch7.addGeometry(Part.ArcOfCircle(Part.Circle(V(-54.5, 57.3, 0), V(0, 0, 1), 3.4), math.radians(90), math.radians(270)), False)
sketch7.addGeometry(Part.LineSegment(V(-54.5, 53.9, 0), V(-40.8, 53.9, 0)), False)
sketch7.addGeometry(Part.ArcOfCircle(Part.Circle(V(-40.8, 57.3, 0), V(0, 0, 1), 3.4), math.radians(-90), math.radians(90)), False)
sketch7.addGeometry(Part.LineSegment(V(-40.8, 60.7, 0), V(-54.5, 60.7, 0)), False)
sketch7.addGeometry(Part.ArcOfCircle(Part.Circle(V(30.5, 57.3, 0), V(0, 0, 1), 3.5), math.radians(90), math.radians(270)), False)
sketch7.addGeometry(Part.LineSegment(V(30.5, 53.8, 0), V(44.5, 53.8, 0)), False)
sketch7.addGeometry(Part.ArcOfCircle(Part.Circle(V(44.5, 57.3, 0), V(0, 0, 1), 3.5), math.radians(-90), math.radians(90)), False)
sketch7.addGeometry(Part.LineSegment(V(44.5, 60.8, 0), V(30.5, 60.8, 0)), False)
sketch7.addConstraint(Sketcher.Constraint("Tangent", 0, 2, 1, 1))
sketch7.addConstraint(Sketcher.Constraint("Tangent", 1, 2, 2, 1))
sketch7.addConstraint(Sketcher.Constraint("Tangent", 2, 2, 3, 1))
sketch7.addConstraint(Sketcher.Constraint("Tangent", 3, 2, 0, 1))
sketch7.addConstraint(Sketcher.Constraint("Tangent", 4, 2, 5, 1))
sketch7.addConstraint(Sketcher.Constraint("Tangent", 5, 2, 6, 1))
sketch7.addConstraint(Sketcher.Constraint("Tangent", 6, 2, 7, 1))
sketch7.addConstraint(Sketcher.Constraint("Tangent", 7, 2, 4, 1))
sketch7.addConstraint(Sketcher.Constraint("Horizontal", 1))
sketch7.addConstraint(Sketcher.Constraint("Horizontal", 3))
sketch7.addConstraint(Sketcher.Constraint("Horizontal", 5))
sketch7.addConstraint(Sketcher.Constraint("Horizontal", 7))
sketch7.addConstraint(Sketcher.Constraint("Horizontal", 2, 3, 4, 3))
sketch7.addConstraint(Sketcher.Constraint("Radius", 0, 3.38))
sketch7.addConstraint(Sketcher.Constraint("Radius", 4, 3.54))
sketch7.addConstraint(Sketcher.Constraint("DistanceX", 0, 3, 4, 3, 85.0))
sketch7.addConstraint(Sketcher.Constraint("DistanceX", 1, 1, 1, 2, 13.68))
sketch7.addConstraint(Sketcher.Constraint("DistanceX", 5, 1, 5, 2, 14.02))
sketch7.addConstraint(Sketcher.Constraint("DistanceX", 0, 3, -1, 1, 54.5))
sketch7.addConstraint(Sketcher.Constraint("DistanceY", -1, 1, 0, 3, 57.3))
pocket2 = body.newObject("PartDesign::Pocket", "Pocket001")
pocket2.Profile = sketch7
pocket2.Length = 2.25
doc.recompute()

chamfer = body.newObject("PartDesign::Chamfer", "Chamfer")
chamfer.Base = (pocket2, edges_at(pocket2, [
    (-29.345, -47.62, 3),
    (-33.095, -47.62, 0),
    (-33.095, -47.62, 0),
    (15.105, -47.62, 3),
    (11.355, -47.62, 0),
    (11.355, -47.62, 0),
    (-29.345, 47.62, 3),
    (-33.095, 47.62, 0),
    (-33.095, 47.62, 0),
    (15.105, 47.62, 3),
    (11.355, 47.62, 0),
    (11.355, 47.62, 0),
]))
chamfer.Size = 2.5

# Sketch on XY plane
sketch8 = body.newObject("Sketcher::SketchObject", "Sketch007")
sketch8.AttachmentSupport = (doc.getObject("XY_Plane"), [""])
sketch8.MapMode = "FlatFace"
add_polygon(sketch8, [(-72.5, 31.8), (-72.5, 36.8), (-26.2, 36.8), (-26.2, 31.8)])  # lines 0-3
add_polygon(sketch8, [(-72.5, 40.8), (-72.5, 47.8), (-54.5, 47.8), (-54.5, 40.8)])  # lines 4-7
add_polygon(sketch8, [(-72.5, -28.2), (-72.5, -22.2), (-62.5, -22.2), (-62.5, -28.2)])  # lines 8-11
sketch8.addConstraint(Sketcher.Constraint("Vertical", 0))
sketch8.addConstraint(Sketcher.Constraint("Horizontal", 1))
sketch8.addConstraint(Sketcher.Constraint("Vertical", 2))
sketch8.addConstraint(Sketcher.Constraint("Horizontal", 3))
sketch8.addConstraint(Sketcher.Constraint("Vertical", 4))
sketch8.addConstraint(Sketcher.Constraint("Horizontal", 5))
sketch8.addConstraint(Sketcher.Constraint("Vertical", 6))
sketch8.addConstraint(Sketcher.Constraint("Horizontal", 7))
sketch8.addConstraint(Sketcher.Constraint("Vertical", 8))
sketch8.addConstraint(Sketcher.Constraint("Horizontal", 9))
sketch8.addConstraint(Sketcher.Constraint("Vertical", 10))
sketch8.addConstraint(Sketcher.Constraint("Horizontal", 11))
sketch8.addConstraint(Sketcher.Constraint("Vertical", 3, 2, 4, 2))
sketch8.addConstraint(Sketcher.Constraint("Vertical", 7, 2, 8, 2))
sketch8.addConstraint(Sketcher.Constraint("DistanceX", 5, 1, 5, 2, 18.0))
sketch8.addConstraint(Sketcher.Constraint("DistanceX", 9, 1, 9, 2, 10.0))
sketch8.addConstraint(Sketcher.Constraint("DistanceY", 0, 1, 0, 2, 5.0))
sketch8.addConstraint(Sketcher.Constraint("DistanceY", 4, 1, 4, 2, 7.0))
sketch8.addConstraint(Sketcher.Constraint("DistanceY", 8, 1, 8, 2, 6.0))
sketch8.addConstraint(Sketcher.Constraint("DistanceY", 0, 2, 4, 2, 11.0))
sketch8.addConstraint(Sketcher.Constraint("DistanceY", 8, 2, 3, 2, 54.0))
sketch8.addConstraint(Sketcher.Constraint("DistanceX", 1, 1, 1, 2, 46.28))
sketch8.addConstraint(Sketcher.Constraint("DistanceX", 0, 2, -1, 1, 72.5))
sketch8.addConstraint(Sketcher.Constraint("DistanceY", -1, 1, 0, 2, 36.8))
pocket3 = body.newObject("PartDesign::Pocket", "Pocket002")
pocket3.Profile = sketch8
pocket3.Length = 2.1
pocket3.Reversed = True

doc.recompute()
